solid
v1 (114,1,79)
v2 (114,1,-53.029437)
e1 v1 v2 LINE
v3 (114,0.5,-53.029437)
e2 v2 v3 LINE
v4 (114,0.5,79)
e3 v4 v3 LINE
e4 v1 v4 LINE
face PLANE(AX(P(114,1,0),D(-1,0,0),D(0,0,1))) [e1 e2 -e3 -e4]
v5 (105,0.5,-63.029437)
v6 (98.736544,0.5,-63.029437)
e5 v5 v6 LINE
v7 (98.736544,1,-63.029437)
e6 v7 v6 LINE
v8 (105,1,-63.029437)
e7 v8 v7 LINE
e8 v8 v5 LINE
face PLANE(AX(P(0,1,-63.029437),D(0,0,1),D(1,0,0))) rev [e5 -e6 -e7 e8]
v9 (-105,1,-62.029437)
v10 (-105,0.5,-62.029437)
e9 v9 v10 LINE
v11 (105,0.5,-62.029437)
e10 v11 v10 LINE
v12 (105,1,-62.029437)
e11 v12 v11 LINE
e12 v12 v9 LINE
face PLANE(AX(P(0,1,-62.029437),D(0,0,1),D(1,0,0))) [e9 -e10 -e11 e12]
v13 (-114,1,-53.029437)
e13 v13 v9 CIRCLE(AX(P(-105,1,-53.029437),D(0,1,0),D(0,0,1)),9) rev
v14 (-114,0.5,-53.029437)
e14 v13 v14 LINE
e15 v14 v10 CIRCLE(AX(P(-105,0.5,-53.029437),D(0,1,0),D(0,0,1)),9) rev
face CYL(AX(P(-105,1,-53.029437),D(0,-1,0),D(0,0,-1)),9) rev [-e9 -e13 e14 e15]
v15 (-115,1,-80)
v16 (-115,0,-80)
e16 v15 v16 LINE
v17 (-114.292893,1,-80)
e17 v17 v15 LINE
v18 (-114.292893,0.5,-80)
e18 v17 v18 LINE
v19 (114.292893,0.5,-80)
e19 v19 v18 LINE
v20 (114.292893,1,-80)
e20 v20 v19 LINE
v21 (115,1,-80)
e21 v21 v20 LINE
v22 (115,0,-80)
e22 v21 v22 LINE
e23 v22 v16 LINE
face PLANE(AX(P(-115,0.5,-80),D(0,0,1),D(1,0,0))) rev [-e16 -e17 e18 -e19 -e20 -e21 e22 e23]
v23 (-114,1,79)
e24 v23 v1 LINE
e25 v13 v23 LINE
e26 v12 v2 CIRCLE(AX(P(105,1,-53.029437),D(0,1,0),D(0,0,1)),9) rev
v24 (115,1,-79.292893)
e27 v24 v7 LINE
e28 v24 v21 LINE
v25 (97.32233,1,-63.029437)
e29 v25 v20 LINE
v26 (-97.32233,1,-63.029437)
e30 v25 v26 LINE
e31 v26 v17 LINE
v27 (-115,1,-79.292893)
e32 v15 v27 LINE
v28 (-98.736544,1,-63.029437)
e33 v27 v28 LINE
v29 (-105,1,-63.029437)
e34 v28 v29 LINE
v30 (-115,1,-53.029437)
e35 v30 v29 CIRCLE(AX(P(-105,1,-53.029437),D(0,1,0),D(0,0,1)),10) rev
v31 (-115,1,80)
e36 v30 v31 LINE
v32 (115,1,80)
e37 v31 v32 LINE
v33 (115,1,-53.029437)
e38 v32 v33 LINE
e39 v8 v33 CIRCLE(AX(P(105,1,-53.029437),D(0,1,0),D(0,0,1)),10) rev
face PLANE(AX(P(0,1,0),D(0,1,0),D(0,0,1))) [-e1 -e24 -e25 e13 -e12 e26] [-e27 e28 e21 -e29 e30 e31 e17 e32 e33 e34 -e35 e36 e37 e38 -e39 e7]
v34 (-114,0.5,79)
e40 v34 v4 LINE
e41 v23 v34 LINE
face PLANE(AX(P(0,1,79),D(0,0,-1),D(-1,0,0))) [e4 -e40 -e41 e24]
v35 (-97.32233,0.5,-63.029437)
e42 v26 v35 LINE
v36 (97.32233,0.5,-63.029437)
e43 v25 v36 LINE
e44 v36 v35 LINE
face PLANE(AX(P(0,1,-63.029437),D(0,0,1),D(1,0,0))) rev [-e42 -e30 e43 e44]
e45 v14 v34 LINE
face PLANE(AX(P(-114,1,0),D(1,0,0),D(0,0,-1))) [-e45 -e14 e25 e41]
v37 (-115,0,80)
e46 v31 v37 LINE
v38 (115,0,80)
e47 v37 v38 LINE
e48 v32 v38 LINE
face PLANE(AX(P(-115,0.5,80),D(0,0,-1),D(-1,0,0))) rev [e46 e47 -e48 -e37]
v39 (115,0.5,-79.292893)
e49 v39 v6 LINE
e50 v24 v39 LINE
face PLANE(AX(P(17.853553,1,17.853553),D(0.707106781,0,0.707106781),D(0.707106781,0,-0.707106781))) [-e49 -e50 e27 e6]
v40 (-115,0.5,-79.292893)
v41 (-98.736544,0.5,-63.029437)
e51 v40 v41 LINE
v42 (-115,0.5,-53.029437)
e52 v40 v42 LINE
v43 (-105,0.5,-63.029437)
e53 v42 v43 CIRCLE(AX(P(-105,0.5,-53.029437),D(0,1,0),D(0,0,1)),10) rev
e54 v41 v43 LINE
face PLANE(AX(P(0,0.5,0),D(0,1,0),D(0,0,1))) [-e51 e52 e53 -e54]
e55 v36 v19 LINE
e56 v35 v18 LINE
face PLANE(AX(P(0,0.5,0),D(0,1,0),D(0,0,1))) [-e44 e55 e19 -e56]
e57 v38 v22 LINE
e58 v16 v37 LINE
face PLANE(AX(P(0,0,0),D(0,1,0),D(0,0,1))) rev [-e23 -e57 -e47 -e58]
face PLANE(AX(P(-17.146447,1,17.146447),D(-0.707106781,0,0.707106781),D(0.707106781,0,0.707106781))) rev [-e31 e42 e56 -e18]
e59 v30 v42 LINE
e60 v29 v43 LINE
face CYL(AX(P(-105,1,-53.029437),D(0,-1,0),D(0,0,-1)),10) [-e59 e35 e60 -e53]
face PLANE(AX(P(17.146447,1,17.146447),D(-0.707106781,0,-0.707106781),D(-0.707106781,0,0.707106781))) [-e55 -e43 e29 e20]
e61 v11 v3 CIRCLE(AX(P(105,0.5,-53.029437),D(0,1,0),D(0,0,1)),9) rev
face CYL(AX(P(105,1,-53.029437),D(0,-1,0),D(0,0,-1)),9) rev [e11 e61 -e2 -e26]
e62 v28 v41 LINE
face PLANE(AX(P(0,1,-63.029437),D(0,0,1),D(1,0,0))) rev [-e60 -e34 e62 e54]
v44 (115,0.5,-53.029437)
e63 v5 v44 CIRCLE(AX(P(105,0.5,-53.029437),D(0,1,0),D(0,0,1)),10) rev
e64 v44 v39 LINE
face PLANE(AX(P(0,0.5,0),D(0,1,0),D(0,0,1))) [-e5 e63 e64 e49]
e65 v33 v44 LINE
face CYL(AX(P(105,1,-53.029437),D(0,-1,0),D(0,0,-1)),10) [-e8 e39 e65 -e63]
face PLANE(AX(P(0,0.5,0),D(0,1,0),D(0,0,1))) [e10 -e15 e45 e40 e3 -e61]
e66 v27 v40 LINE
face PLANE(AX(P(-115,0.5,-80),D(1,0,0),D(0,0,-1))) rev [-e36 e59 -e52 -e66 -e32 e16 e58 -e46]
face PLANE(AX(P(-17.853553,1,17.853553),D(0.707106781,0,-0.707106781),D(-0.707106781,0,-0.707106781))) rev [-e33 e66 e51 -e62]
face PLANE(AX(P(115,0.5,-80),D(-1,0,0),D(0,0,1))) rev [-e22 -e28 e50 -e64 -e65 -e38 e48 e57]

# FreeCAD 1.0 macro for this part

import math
import FreeCAD as App
import Part
import Sketcher
from FreeCAD import Vector


def add_polygon(sketch, points):
    """Adds a closed chain of lines whose ends are joined by coincident constraints."""
    first, n = sketch.GeometryCount, len(points)
    for a, b in zip(points, points[1:] + points[:1]):
        sketch.addGeometry(Part.LineSegment(App.Vector(*a, 0), App.Vector(*b, 0)), False)
    for i in range(n):
        sketch.addConstraint(Sketcher.Constraint("Coincident", first + i, 2, first + (i + 1) % n, 1))

doc = App.newDocument("Part")
body = doc.addObject("PartDesign::Body", "Body")

# Sketch on XZ plane
sketch1 = body.newObject("Sketcher::SketchObject", "Sketch")
sketch1.AttachmentSupport = (doc.getObject("XZ_Plane"), [""])
sketch1.MapMode = "FlatFace"
add_polygon(sketch1, [(-115, -80), (-115, 80), (115, 80), (115, -80)])  # lines 0-3
sketch1.addConstraint([
    Sketcher.Constraint("Vertical", 0),
    Sketcher.Constraint("Horizontal", 1),
    Sketcher.Constraint("Vertical", 2),
    Sketcher.Constraint("Horizontal", 3),
    Sketcher.Constraint("Symmetric", 0, 2, 2, 2, -1, 1),
    Sketcher.Constraint("DistanceX", 1, 1, 1, 2, 230.0),
    Sketcher.Constraint("DistanceY", 0, 1, 0, 2, 160.0),
])
pad1 = body.newObject("PartDesign::Pad", "Pad")
pad1.Profile = sketch1
pad1.Length = 0.5
pad1.Reversed = True

# Sketch on XZ plane
sketch2 = body.newObject("Sketcher::SketchObject", "Sketch001")
sketch2.AttachmentSupport = (doc.getObject("XZ_Plane"), [""])
sketch2.MapMode = "FlatFace"
sketch2.AttachmentOffset = App.Placement(Vector(0, 0, -0.5), App.Rotation())
sketch2.addGeometry([
    Part.ArcOfCircle(Part.Circle(Vector(-105, -53, 0), Vector(0, 0, 1), 10), math.radians(-180), math.radians(-90)),  # 0
    Part.LineSegment(Vector(-115, -53, 0), Vector(-115, 80, 0)),  # 1
    Part.LineSegment(Vector(-115, 80, 0), Vector(115, 80, 0)),  # 2
    Part.LineSegment(Vector(115, 80, 0), Vector(115, -53, 0)),  # 3
    Part.ArcOfCircle(Part.Circle(Vector(105, -53, 0), Vector(0, 0, 1), 10), math.radians(-90), math.radians(0)),  # 4
    Part.LineSegment(Vector(105, -63, 0), Vector(98.7, -63, 0)),  # 5
    Part.LineSegment(Vector(98.7, -63, 0), Vector(115, -79.3, 0)),  # 6
    Part.LineSegment(Vector(115, -79.3, 0), Vector(115, -80, 0)),  # 7
    Part.LineSegment(Vector(115, -80, 0), Vector(114.3, -80, 0)),  # 8
    Part.LineSegment(Vector(114.3, -80, 0), Vector(97.3, -63, 0)),  # 9
    Part.LineSegment(Vector(97.3, -63, 0), Vector(-97.3, -63, 0)),  # 10
    Part.LineSegment(Vector(-97.3, -63, 0), Vector(-114.3, -80, 0)),  # 11
    Part.LineSegment(Vector(-114.3, -80, 0), Vector(-115, -80, 0)),  # 12
    Part.LineSegment(Vector(-115, -80, 0), Vector(-115, -79.3, 0)),  # 13
    Part.LineSegment(Vector(-115, -79.3, 0), Vector(-98.7, -63, 0)),  # 14
    Part.LineSegment(Vector(-98.7, -63, 0), Vector(-105, -63, 0)),  # 15
    Part.ArcOfCircle(Part.Circle(Vector(-105, -53, 0), Vector(0, 0, 1), 9), math.radians(-180), math.radians(-90)),  # 16
    Part.LineSegment(Vector(-105, -62, 0), Vector(105, -62, 0)),  # 17
    Part.ArcOfCircle(Part.Circle(Vector(105, -53, 0), Vector(0, 0, 1), 9), math.radians(-90), math.radians(0)),  # 18
    Part.LineSegment(Vector(114, -53, 0), Vector(114, 79, 0)),  # 19
    Part.LineSegment(Vector(114, 79, 0), Vector(-114, 79, 0)),  # 20
    Part.LineSegment(Vector(-114, 79, 0), Vector(-114, -53, 0)),  # 21
], False)
sketch2.addConstraint([
    Sketcher.Constraint("Tangent", 0, 1, 1, 1),
    Sketcher.Constraint("Coincident", 1, 2, 2, 1),
    Sketcher.Constraint("Coincident", 2, 2, 3, 1),
    Sketcher.Constraint("Tangent", 3, 2, 4, 2),
    Sketcher.Constraint("Tangent", 4, 1, 5, 1),
    Sketcher.Constraint("Coincident", 5, 2, 6, 1),
    Sketcher.Constraint("Coincident", 6, 2, 7, 1),
    Sketcher.Constraint("Coincident", 7, 2, 8, 1),
    Sketcher.Constraint("Coincident", 8, 2, 9, 1),
    Sketcher.Constraint("Coincident", 9, 2, 10, 1),
    Sketcher.Constraint("Coincident", 10, 2, 11, 1),
    Sketcher.Constraint("Coincident", 11, 2, 12, 1),
    Sketcher.Constraint("Coincident", 12, 2, 13, 1),
    Sketcher.Constraint("Coincident", 13, 2, 14, 1),
    Sketcher.Constraint("Coincident", 14, 2, 15, 1),
    Sketcher.Constraint("Tangent", 15, 2, 0, 2),
    Sketcher.Constraint("Tangent", 16, 2, 17, 1),
    Sketcher.Constraint("Tangent", 17, 2, 18, 1),
    Sketcher.Constraint("Tangent", 18, 2, 19, 1),
    Sketcher.Constraint("Coincident", 19, 2, 20, 1),
    Sketcher.Constraint("Coincident", 20, 2, 21, 1),
    Sketcher.Constraint("Tangent", 21, 2, 16, 1),
    Sketcher.Constraint("Vertical", 1),
    Sketcher.Constraint("Horizontal", 2),
    Sketcher.Constraint("Vertical", 3),
    Sketcher.Constraint("Horizontal", 5),
    Sketcher.Constraint("Vertical", 7),
    Sketcher.Constraint("Horizontal", 8),
    Sketcher.Constraint("Horizontal", 10),
    Sketcher.Constraint("Horizontal", 12),
    Sketcher.Constraint("Vertical", 13),
    Sketcher.Constraint("Horizontal", 15),
    Sketcher.Constraint("Horizontal", 17),
    Sketcher.Constraint("Vertical", 19),
    Sketcher.Constraint("Horizontal", 20),
    Sketcher.Constraint("Vertical", 21),
    Sketcher.Constraint("Coincident", 16, 3, 0, 3),
    Sketcher.Constraint("Coincident", 18, 3, 4, 3),
    Sketcher.Constraint("Equal", 0, 4),
    Sketcher.Constraint("Equal", 16, 18),
    Sketcher.Constraint("Symmetric", 1, 2, 7, 2, -1, 1),
    Sketcher.Constraint("Symmetric", 2, 2, 12, 2, -1, 1),
    Sketcher.Constraint("Symmetric", 6, 2, 13, 2, -2),
    Sketcher.Constraint("Parallel", 6, 9),
    Sketcher.Constraint("Perpendicular", 9, 11),
    Sketcher.Constraint("Parallel", 11, 14),
    Sketcher.Constraint("Horizontal", 5, 2, 9, 2),
    Sketcher.Constraint("Equal", 8, 12),
    Sketcher.Constraint("Equal", 5, 15),
    Sketcher.Constraint("Equal", 12, 7),
    Sketcher.Constraint("Radius", 0, 10.0),
    Sketcher.Constraint("Radius", 16, 9.0),
    Sketcher.Constraint("DistanceX", 2, 1, 2, 2, 230.0),
    Sketcher.Constraint("Distance", 6, 23.0),
    Sketcher.Constraint("Distance", 9, 24.0),
    Sketcher.Constraint("DistanceY", -1, 1, 1, 2, 80.0),
    Sketcher.Constraint("DistanceY", -1, 1, 19, 2, 79.0),
])
pad2 = body.newObject("PartDesign::Pad", "Pad001")
pad2.Profile = sketch2
pad2.Length = 0.5
pad2.Reversed = True

doc.recompute()
